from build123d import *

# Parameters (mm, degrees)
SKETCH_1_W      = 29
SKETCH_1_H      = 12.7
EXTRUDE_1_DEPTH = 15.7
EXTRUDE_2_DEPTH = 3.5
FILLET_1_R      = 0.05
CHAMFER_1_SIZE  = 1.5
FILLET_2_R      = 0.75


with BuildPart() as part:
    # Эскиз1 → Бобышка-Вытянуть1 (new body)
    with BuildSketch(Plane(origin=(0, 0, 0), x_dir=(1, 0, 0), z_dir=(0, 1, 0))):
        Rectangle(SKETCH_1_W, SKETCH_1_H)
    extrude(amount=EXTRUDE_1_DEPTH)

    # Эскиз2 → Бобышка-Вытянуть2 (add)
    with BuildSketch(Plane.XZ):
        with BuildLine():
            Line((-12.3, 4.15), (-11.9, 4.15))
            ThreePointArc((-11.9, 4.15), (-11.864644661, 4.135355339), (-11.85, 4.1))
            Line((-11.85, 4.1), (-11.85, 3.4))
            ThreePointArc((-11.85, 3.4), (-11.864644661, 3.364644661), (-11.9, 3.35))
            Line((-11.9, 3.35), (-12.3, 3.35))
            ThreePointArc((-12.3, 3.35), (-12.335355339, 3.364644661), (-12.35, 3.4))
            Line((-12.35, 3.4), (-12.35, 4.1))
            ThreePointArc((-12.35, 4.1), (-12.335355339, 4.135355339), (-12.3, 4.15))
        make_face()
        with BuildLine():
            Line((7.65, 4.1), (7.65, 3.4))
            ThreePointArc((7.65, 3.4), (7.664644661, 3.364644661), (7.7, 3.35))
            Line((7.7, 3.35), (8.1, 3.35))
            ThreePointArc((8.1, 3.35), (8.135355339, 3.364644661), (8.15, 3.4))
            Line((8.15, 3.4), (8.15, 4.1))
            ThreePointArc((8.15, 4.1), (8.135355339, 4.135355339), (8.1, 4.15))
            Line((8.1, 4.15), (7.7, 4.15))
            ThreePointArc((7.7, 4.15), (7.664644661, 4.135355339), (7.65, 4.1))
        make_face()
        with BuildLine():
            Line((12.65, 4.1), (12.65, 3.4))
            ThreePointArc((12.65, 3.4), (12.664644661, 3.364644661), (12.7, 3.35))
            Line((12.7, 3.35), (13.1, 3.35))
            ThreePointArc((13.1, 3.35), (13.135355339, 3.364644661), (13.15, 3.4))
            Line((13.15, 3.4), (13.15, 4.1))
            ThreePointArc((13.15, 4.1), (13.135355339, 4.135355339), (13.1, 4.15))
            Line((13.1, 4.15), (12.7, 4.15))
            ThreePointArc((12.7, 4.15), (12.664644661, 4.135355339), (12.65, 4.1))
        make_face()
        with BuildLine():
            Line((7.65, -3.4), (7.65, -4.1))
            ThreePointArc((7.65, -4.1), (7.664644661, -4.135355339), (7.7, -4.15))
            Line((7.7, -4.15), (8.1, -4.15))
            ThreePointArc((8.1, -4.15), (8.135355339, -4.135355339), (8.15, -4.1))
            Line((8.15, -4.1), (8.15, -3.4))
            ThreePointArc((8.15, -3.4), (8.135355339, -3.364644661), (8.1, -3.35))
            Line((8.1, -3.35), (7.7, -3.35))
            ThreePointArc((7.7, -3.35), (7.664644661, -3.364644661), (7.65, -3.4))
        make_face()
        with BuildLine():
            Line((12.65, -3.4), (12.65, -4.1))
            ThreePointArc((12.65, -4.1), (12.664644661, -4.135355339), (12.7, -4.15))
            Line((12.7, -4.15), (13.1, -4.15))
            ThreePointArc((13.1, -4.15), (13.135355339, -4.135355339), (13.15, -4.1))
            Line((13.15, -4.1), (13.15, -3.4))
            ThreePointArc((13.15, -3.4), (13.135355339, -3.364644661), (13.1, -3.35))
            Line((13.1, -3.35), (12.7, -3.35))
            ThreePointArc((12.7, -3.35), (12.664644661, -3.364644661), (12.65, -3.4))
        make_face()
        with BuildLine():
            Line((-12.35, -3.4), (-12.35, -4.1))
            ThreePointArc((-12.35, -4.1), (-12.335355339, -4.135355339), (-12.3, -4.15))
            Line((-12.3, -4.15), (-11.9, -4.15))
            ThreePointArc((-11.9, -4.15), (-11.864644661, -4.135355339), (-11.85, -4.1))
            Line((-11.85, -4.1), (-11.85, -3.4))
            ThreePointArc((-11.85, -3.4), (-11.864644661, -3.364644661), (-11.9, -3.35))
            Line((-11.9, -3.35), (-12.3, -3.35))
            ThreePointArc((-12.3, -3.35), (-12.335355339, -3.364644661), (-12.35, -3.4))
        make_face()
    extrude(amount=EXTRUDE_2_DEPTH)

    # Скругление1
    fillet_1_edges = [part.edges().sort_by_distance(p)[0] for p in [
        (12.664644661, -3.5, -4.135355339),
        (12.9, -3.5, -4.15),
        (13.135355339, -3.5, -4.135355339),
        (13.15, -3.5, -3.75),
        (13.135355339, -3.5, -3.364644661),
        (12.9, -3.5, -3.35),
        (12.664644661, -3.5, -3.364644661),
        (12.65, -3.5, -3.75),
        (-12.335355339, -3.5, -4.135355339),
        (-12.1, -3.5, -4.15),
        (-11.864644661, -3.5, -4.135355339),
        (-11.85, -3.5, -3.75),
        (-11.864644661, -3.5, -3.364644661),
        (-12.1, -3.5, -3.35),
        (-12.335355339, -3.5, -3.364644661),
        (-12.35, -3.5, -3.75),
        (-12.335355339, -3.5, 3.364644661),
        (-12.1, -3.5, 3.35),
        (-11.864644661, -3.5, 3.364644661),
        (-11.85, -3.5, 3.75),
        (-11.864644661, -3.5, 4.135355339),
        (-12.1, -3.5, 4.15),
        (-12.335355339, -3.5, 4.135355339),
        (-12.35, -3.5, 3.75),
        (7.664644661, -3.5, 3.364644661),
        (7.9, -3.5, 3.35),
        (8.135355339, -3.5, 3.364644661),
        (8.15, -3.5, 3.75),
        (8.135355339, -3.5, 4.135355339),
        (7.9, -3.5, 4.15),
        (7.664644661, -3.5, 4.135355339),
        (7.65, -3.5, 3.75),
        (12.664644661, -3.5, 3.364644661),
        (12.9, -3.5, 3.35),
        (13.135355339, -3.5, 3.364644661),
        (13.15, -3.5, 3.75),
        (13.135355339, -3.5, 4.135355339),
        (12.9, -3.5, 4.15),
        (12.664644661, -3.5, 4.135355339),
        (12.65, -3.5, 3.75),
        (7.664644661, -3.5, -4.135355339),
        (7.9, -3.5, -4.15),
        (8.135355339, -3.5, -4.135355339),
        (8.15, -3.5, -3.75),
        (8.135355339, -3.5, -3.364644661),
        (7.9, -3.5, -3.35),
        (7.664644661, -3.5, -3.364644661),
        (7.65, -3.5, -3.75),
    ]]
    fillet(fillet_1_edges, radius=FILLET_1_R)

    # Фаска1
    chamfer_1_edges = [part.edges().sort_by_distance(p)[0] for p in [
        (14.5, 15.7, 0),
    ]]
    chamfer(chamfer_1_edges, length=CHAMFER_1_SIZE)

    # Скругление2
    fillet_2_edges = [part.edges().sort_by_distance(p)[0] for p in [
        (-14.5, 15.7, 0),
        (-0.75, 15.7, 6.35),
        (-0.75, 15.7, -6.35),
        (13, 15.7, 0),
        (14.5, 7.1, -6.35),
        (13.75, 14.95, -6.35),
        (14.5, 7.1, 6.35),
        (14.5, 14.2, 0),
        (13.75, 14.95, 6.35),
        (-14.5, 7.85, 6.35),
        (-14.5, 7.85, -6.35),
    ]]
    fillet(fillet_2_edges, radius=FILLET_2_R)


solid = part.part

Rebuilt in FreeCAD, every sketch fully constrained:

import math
import FreeCAD as App
import Part
import Sketcher
from FreeCAD import Vector


def edges_at(feature, points):
    """Names of the edges that pass closest to the given points."""
    edges = feature.Shape.Edges
    near = lambda p: min(range(len(edges)), key=lambda i: edges[i].distToShape(Part.Vertex(*p))[0])
    return sorted({f"Edge{near(p) + 1}" for p in points})


def add_polygon(sketch, points):
    """Adds a closed chain of lines whose ends are joined by coincident constraints."""
    first, n = sketch.GeometryCount, len(points)
    for a, b in zip(points, points[1:] + points[:1]):
        sketch.addGeometry(Part.LineSegment(App.Vector(*a, 0), App.Vector(*b, 0)), False)
    for i in range(n):
        sketch.addConstraint(Sketcher.Constraint("Coincident", first + i, 2, first + (i + 1) % n, 1))

doc = App.newDocument("Part")
params = doc.addObject("Spreadsheet::Sheet", "Params")
for row, (alias, value) in enumerate([
    ("sketch1_width", "29 mm"),
    ("sketch1_height", "12.7 mm"),
    ("pad1_length", "15.7 mm"),
    ("sketch2_radius", "0.05 mm"),
    ("sketch2_width", "0.4 mm"),
    ("sketch2_height", "0.7 mm"),
    ("pad2_length", "3.5 mm"),
    ("fillet_radius", "0.05 mm"),
    ("chamfer_size", "1.5 mm"),
    ("fillet2_radius", "0.75 mm"),
], start=1):
    params.set(f"A{row}", alias)
    params.set(f"B{row}", "=" + value)
    params.setAlias(f"B{row}", alias)

body = doc.addObject("PartDesign::Body", "Body")

sketch1 = body.newObject("Sketcher::SketchObject", "Sketch")
sketch1.AttachmentSupport = (doc.getObject("XZ_Plane"), [""])
sketch1.MapMode = "FlatFace"
add_polygon(sketch1, [(-14, -6), (-14, 6), (14, 6), (14, -6)])
sketch1.addConstraint(Sketcher.Constraint("Vertical", 0))
sketch1.addConstraint(Sketcher.Constraint("Horizontal", 1))
sketch1.addConstraint(Sketcher.Constraint("Vertical", 2))
sketch1.addConstraint(Sketcher.Constraint("Horizontal", 3))
sketch1.addConstraint(Sketcher.Constraint("Symmetric", 0, 2, 2, 2, -1, 1))
sketch1.addConstraint(Sketcher.Constraint("DistanceX", 1, 1, 1, 2, 29.0))
sketch1.addConstraint(Sketcher.Constraint("DistanceY", 0, 1, 0, 2, 12.7))
sketch1.setExpression("Constraints[9]", "Params.sketch1_width")
sketch1.setExpression("Constraints[10]", "Params.sketch1_height")
pad1 = body.newObject("PartDesign::Pad", "Pad")
pad1.Profile = sketch1
pad1.setExpression("Length", "Params.pad1_length")
pad1.Reversed = True

sketch2 = body.newObject("Sketcher::SketchObject", "Sketch001")
sketch2.AttachmentSupport = (doc.getObject("XZ_Plane"), [""])
sketch2.MapMode = "FlatFace"
sketch2.addGeometry(Part.LineSegment(Vector(-11.9, 4.15, 0), Vector(-12.3, 4.15, 0)), False)
sketch2.addGeometry(Part.ArcOfCircle(Part.Circle(Vector(-12.3, 4.1, 0), Vector(0, 0, 1), 0.05), math.radians(90), math.radians(180)), False)
sketch2.addGeometry(Part.LineSegment(Vector(-12.35, 4.1, 0), Vector(-12.35, 3.4, 0)), False)
sketch2.addGeometry(Part.ArcOfCircle(Part.Circle(Vector(-12.3, 3.4, 0), Vector(0, 0, 1), 0.05), math.radians(180), math.radians(270)), False)
sketch2.addGeometry(Part.LineSegment(Vector(-12.3, 3.35, 0), Vector(-11.9, 3.35, 0)), False)
sketch2.addGeometry(Part.ArcOfCircle(Part.Circle(Vector(-11.9, 3.4, 0), Vector(0, 0, 1), 0.05), math.radians(-90), math.radians(0)), False)
sketch2.addGeometry(Part.LineSegment(Vector(-11.85, 3.4, 0), Vector(-11.85, 4.1, 0)), False)
sketch2.addGeometry(Part.ArcOfCircle(Part.Circle(Vector(-11.9, 4.1, 0), Vector(0, 0, 1), 0.05), math.radians(0), math.radians(90)), False)
sketch2.addGeometry(Part.LineSegment(Vector(7.65, 4.1, 0), Vector(7.65, 3.4, 0)), False)
sketch2.addGeometry(Part.ArcOfCircle(Part.Circle(Vector(7.7, 3.4, 0), Vector(0, 0, 1), 0.05), math.radians(180), math.radians(270)), False)
sketch2.addGeometry(Part.LineSegment(Vector(7.7, 3.35, 0), Vector(8.1, 3.35, 0)), False)
sketch2.addGeometry(Part.ArcOfCircle(Part.Circle(Vector(8.1, 3.4, 0), Vector(0, 0, 1), 0.05), math.radians(-90), math.radians(0)), False)
sketch2.addGeometry(Part.LineSegment(Vector(8.15, 3.4, 0), Vector(8.15, 4.1, 0)), False)
sketch2.addGeometry(Part.ArcOfCircle(Part.Circle(Vector(8.1, 4.1, 0), Vector(0, 0, 1), 0.05), math.radians(0), math.radians(90)), False)
sketch2.addGeometry(Part.LineSegment(Vector(8.1, 4.15, 0), Vector(7.7, 4.15, 0)), False)
sketch2.addGeometry(Part.ArcOfCircle(Part.Circle(Vector(7.7, 4.1, 0), Vector(0, 0, 1), 0.05), math.radians(90), math.radians(180)), False)
sketch2.addGeometry(Part.LineSegment(Vector(12.65, 4.1, 0), Vector(12.65, 3.4, 0)), False)
sketch2.addGeometry(Part.ArcOfCircle(Part.Circle(Vector(12.7, 3.4, 0), Vector(0, 0, 1), 0.05), math.radians(180), math.radians(270)), False)
sketch2.addGeometry(Part.LineSegment(Vector(12.7, 3.35, 0), Vector(13.1, 3.35, 0)), False)
sketch2.addGeometry(Part.ArcOfCircle(Part.Circle(Vector(13.1, 3.4, 0), Vector(0, 0, 1), 0.05), math.radians(-90), math.radians(0)), False)
sketch2.addGeometry(Part.LineSegment(Vector(13.15, 3.4, 0), Vector(13.15, 4.1, 0)), False)
sketch2.addGeometry(Part.ArcOfCircle(Part.Circle(Vector(13.1, 4.1, 0), Vector(0, 0, 1), 0.05), math.radians(0), math.radians(90)), False)
sketch2.addGeometry(Part.LineSegment(Vector(13.1, 4.15, 0), Vector(12.7, 4.15, 0)), False)
sketch2.addGeometry(Part.ArcOfCircle(Part.Circle(Vector(12.7, 4.1, 0), Vector(0, 0, 1), 0.05), math.radians(90), math.radians(180)), False)
sketch2.addGeometry(Part.LineSegment(Vector(7.65, -3.4, 0), Vector(7.65, -4.1, 0)), False)
sketch2.addGeometry(Part.ArcOfCircle(Part.Circle(Vector(7.7, -4.1, 0), Vector(0, 0, 1), 0.05), math.radians(180), math.radians(270)), False)
sketch2.addGeometry(Part.LineSegment(Vector(7.7, -4.15, 0), Vector(8.1, -4.15, 0)), False)
sketch2.addGeometry(Part.ArcOfCircle(Part.Circle(Vector(8.1, -4.1, 0), Vector(0, 0, 1), 0.05), math.radians(-90), math.radians(0)), False)
sketch2.addGeometry(Part.LineSegment(Vector(8.15, -4.1, 0), Vector(8.15, -3.4, 0)), False)
sketch2.addGeometry(Part.ArcOfCircle(Part.Circle(Vector(8.1, -3.4, 0), Vector(0, 0, 1), 0.05), math.radians(0), math.radians(90)), False)
sketch2.addGeometry(Part.LineSegment(Vector(8.1, -3.35, 0), Vector(7.7, -3.35, 0)), False)
sketch2.addGeometry(Part.ArcOfCircle(Part.Circle(Vector(7.7, -3.4, 0), Vector(0, 0, 1), 0.05), math.radians(90), math.radians(180)), False)
sketch2.addGeometry(Part.LineSegment(Vector(12.65, -3.4, 0), Vector(12.65, -4.1, 0)), False)
sketch2.addGeometry(Part.ArcOfCircle(Part.Circle(Vector(12.7, -4.1, 0), Vector(0, 0, 1), 0.05), math.radians(180), math.radians(270)), False)
sketch2.addGeometry(Part.LineSegment(Vector(12.7, -4.15, 0), Vector(13.1, -4.15, 0)), False)
sketch2.addGeometry(Part.ArcOfCircle(Part.Circle(Vector(13.1, -4.1, 0), Vector(0, 0, 1), 0.05), math.radians(-90), math.radians(0)), False)
sketch2.addGeometry(Part.LineSegment(Vector(13.15, -4.1, 0), Vector(13.15, -3.4, 0)), False)
sketch2.addGeometry(Part.ArcOfCircle(Part.Circle(Vector(13.1, -3.4, 0), Vector(0, 0, 1), 0.05), math.radians(0), math.radians(90)), False)
sketch2.addGeometry(Part.LineSegment(Vector(13.1, -3.35, 0), Vector(12.7, -3.35, 0)), False)
sketch2.addGeometry(Part.ArcOfCircle(Part.Circle(Vector(12.7, -3.4, 0), Vector(0, 0, 1), 0.05), math.radians(90), math.radians(180)), False)
sketch2.addGeometry(Part.LineSegment(Vector(-12.35, -3.4, 0), Vector(-12.35, -4.1, 0)), False)
sketch2.addGeometry(Part.ArcOfCircle(Part.Circle(Vector(-12.3, -4.1, 0), Vector(0, 0, 1), 0.05), math.radians(180), math.radians(270)), False)
sketch2.addGeometry(Part.LineSegment(Vector(-12.3, -4.15, 0), Vector(-11.9, -4.15, 0)), False)
sketch2.addGeometry(Part.ArcOfCircle(Part.Circle(Vector(-11.9, -4.1, 0), Vector(0, 0, 1), 0.05), math.radians(-90), math.radians(0)), False)
sketch2.addGeometry(Part.LineSegment(Vector(-11.85, -4.1, 0), Vector(-11.85, -3.4, 0)), False)
sketch2.addGeometry(Part.ArcOfCircle(Part.Circle(Vector(-11.9, -3.4, 0), Vector(0, 0, 1), 0.05), math.radians(0), math.radians(90)), False)
sketch2.addGeometry(Part.LineSegment(Vector(-11.9, -3.35, 0), Vector(-12.3, -3.35, 0)), False)
sketch2.addGeometry(Part.ArcOfCircle(Part.Circle(Vector(-12.3, -3.4, 0), Vector(0, 0, 1), 0.05), math.radians(90), math.radians(180)), False)
sketch2.addConstraint(Sketcher.Constraint("Tangent", 0, 2, 1, 1))
sketch2.addConstraint(Sketcher.Constraint("Tangent", 1, 2, 2, 1))
sketch2.addConstraint(Sketcher.Constraint("Tangent", 2, 2, 3, 1))
sketch2.addConstraint(Sketcher.Constraint("Tangent", 3, 2, 4, 1))
sketch2.addConstraint(Sketcher.Constraint("Tangent", 4, 2, 5, 1))
sketch2.addConstraint(Sketcher.Constraint("Tangent", 5, 2, 6, 1))
sketch2.addConstraint(Sketcher.Constraint("Tangent", 6, 2, 7, 1))
sketch2.addConstraint(Sketcher.Constraint("Tangent", 7, 2, 0, 1))
sketch2.addConstraint(Sketcher.Constraint("Tangent", 8, 2, 9, 1))
sketch2.addConstraint(Sketcher.Constraint("Tangent", 9, 2, 10, 1))
sketch2.addConstraint(Sketcher.Constraint("Tangent", 10, 2, 11, 1))
sketch2.addConstraint(Sketcher.Constraint("Tangent", 11, 2, 12, 1))
sketch2.addConstraint(Sketcher.Constraint("Tangent", 12, 2, 13, 1))
sketch2.addConstraint(Sketcher.Constraint("Tangent", 13, 2, 14, 1))
sketch2.addConstraint(Sketcher.Constraint("Tangent", 14, 2, 15, 1))
sketch2.addConstraint(Sketcher.Constraint("Tangent", 15, 2, 8, 1))
sketch2.addConstraint(Sketcher.Constraint("Tangent", 16, 2, 17, 1))
sketch2.addConstraint(Sketcher.Constraint("Tangent", 17, 2, 18, 1))
sketch2.addConstraint(Sketcher.Constraint("Tangent", 18, 2, 19, 1))
sketch2.addConstraint(Sketcher.Constraint("Tangent", 19, 2, 20, 1))
sketch2.addConstraint(Sketcher.Constraint("Tangent", 20, 2, 21, 1))
sketch2.addConstraint(Sketcher.Constraint("Tangent", 21, 2, 22, 1))
sketch2.addConstraint(Sketcher.Constraint("Tangent", 22, 2, 23, 1))
sketch2.addConstraint(Sketcher.Constraint("Tangent", 23, 2, 16, 1))
sketch2.addConstraint(Sketcher.Constraint("Tangent", 24, 2, 25, 1))
sketch2.addConstraint(Sketcher.Constraint("Tangent", 25, 2, 26, 1))
sketch2.addConstraint(Sketcher.Constraint("Tangent", 26, 2, 27, 1))
sketch2.addConstraint(Sketcher.Constraint("Tangent", 27, 2, 28, 1))
sketch2.addConstraint(Sketcher.Constraint("Tangent", 28, 2, 29, 1))
sketch2.addConstraint(Sketcher.Constraint("Tangent", 29, 2, 30, 1))
sketch2.addConstraint(Sketcher.Constraint("Tangent", 30, 2, 31, 1))
sketch2.addConstraint(Sketcher.Constraint("Tangent", 31, 2, 24, 1))
sketch2.addConstraint(Sketcher.Constraint("Tangent", 32, 2, 33, 1))
sketch2.addConstraint(Sketcher.Constraint("Tangent", 33, 2, 34, 1))
sketch2.addConstraint(Sketcher.Constraint("Tangent", 34, 2, 35, 1))
sketch2.addConstraint(Sketcher.Constraint("Tangent", 35, 2, 36, 1))
sketch2.addConstraint(Sketcher.Constraint("Tangent", 36, 2, 37, 1))
sketch2.addConstraint(Sketcher.Constraint("Tangent", 37, 2, 38, 1))
sketch2.addConstraint(Sketcher.Constraint("Tangent", 38, 2, 39, 1))
sketch2.addConstraint(Sketcher.Constraint("Tangent", 39, 2, 32, 1))
sketch2.addConstraint(Sketcher.Constraint("Tangent", 40, 2, 41, 1))
sketch2.addConstraint(Sketcher.Constraint("Tangent", 41, 2, 42, 1))
sketch2.addConstraint(Sketcher.Constraint("Tangent", 42, 2, 43, 1))
sketch2.addConstraint(Sketcher.Constraint("Tangent", 43, 2, 44, 1))
sketch2.addConstraint(Sketcher.Constraint("Tangent", 44, 2, 45, 1))
sketch2.addConstraint(Sketcher.Constraint("Tangent", 45, 2, 46, 1))
sketch2.addConstraint(Sketcher.Constraint("Tangent", 46, 2, 47, 1))
sketch2.addConstraint(Sketcher.Constraint("Tangent", 47, 2, 40, 1))
sketch2.addConstraint(Sketcher.Constraint("Horizontal", 0))
sketch2.addConstraint(Sketcher.Constraint("Vertical", 2))
sketch2.addConstraint(Sketcher.Constraint("Horizontal", 4))
sketch2.addConstraint(Sketcher.Constraint("Vertical", 6))
sketch2.addConstraint(Sketcher.Constraint("Vertical", 8))
sketch2.addConstraint(Sketcher.Constraint("Horizontal", 10))
sketch2.addConstraint(Sketcher.Constraint("Vertical", 12))
sketch2.addConstraint(Sketcher.Constraint("Horizontal", 14))
sketch2.addConstraint(Sketcher.Constraint("Vertical", 16))
sketch2.addConstraint(Sketcher.Constraint("Horizontal", 18))
sketch2.addConstraint(Sketcher.Constraint("Vertical", 20))
sketch2.addConstraint(Sketcher.Constraint("Horizontal", 22))
sketch2.addConstraint(Sketcher.Constraint("Vertical", 24))
sketch2.addConstraint(Sketcher.Constraint("Horizontal", 26))
sketch2.addConstraint(Sketcher.Constraint("Vertical", 28))
sketch2.addConstraint(Sketcher.Constraint("Horizontal", 30))
sketch2.addConstraint(Sketcher.Constraint("Vertical", 32))
sketch2.addConstraint(Sketcher.Constraint("Horizontal", 34))
sketch2.addConstraint(Sketcher.Constraint("Vertical", 36))
sketch2.addConstraint(Sketcher.Constraint("Horizontal", 38))
sketch2.addConstraint(Sketcher.Constraint("Vertical", 40))
sketch2.addConstraint(Sketcher.Constraint("Horizontal", 42))
sketch2.addConstraint(Sketcher.Constraint("Vertical", 44))
sketch2.addConstraint(Sketcher.Constraint("Horizontal", 46))
sketch2.addConstraint(Sketcher.Constraint("Equal", 1, 3))
sketch2.addConstraint(Sketcher.Constraint("Equal", 3, 5))
sketch2.addConstraint(Sketcher.Constraint("Equal", 5, 7))
sketch2.addConstraint(Sketcher.Constraint("Equal", 7, 9))
sketch2.addConstraint(Sketcher.Constraint("Equal", 9, 11))
sketch2.addConstraint(Sketcher.Constraint("Equal", 11, 13))
sketch2.addConstraint(Sketcher.Constraint("Equal", 13, 15))
sketch2.addConstraint(Sketcher.Constraint("Equal", 15, 17))
sketch2.addConstraint(Sketcher.Constraint("Equal", 17, 19))
sketch2.addConstraint(Sketcher.Constraint("Equal", 19, 21))
sketch2.addConstraint(Sketcher.Constraint("Equal", 21, 23))
sketch2.addConstraint(Sketcher.Constraint("Equal", 23, 25))
sketch2.addConstraint(Sketcher.Constraint("Equal", 25, 27))
sketch2.addConstraint(Sketcher.Constraint("Equal", 27, 29))
sketch2.addConstraint(Sketcher.Constraint("Equal", 29, 31))
sketch2.addConstraint(Sketcher.Constraint("Equal", 31, 33))
sketch2.addConstraint(Sketcher.Constraint("Equal", 33, 35))
sketch2.addConstraint(Sketcher.Constraint("Equal", 35, 37))
sketch2.addConstraint(Sketcher.Constraint("Equal", 37, 39))
sketch2.addConstraint(Sketcher.Constraint("Equal", 39, 41))
sketch2.addConstraint(Sketcher.Constraint("Equal", 41, 43))
sketch2.addConstraint(Sketcher.Constraint("Equal", 43, 45))
sketch2.addConstraint(Sketcher.Constraint("Equal", 45, 47))
sketch2.addConstraint(Sketcher.Constraint("Symmetric", 15, 3, 25, 3, -1))
sketch2.addConstraint(Sketcher.Constraint("Symmetric", 11, 3, 29, 3, -1))
sketch2.addConstraint(Sketcher.Constraint("Symmetric", 23, 3, 33, 3, -1))
sketch2.addConstraint(Sketcher.Constraint("Symmetric", 19, 3, 37, 3, -1))
sketch2.addConstraint(Sketcher.Constraint("Symmetric", 1, 3, 41, 3, -1))
sketch2.addConstraint(Sketcher.Constraint("Symmetric", 5, 3, 45, 3, -1))
sketch2.addConstraint(Sketcher.Constraint("Horizontal", 5, 3, 9, 3))
sketch2.addConstraint(Sketcher.Constraint("Horizontal", 7, 3, 13, 3))
sketch2.addConstraint(Sketcher.Constraint("Horizontal", 11, 3, 17, 3))
sketch2.addConstraint(Sketcher.Constraint("Horizontal", 15, 3, 21, 3))
sketch2.addConstraint(Sketcher.Constraint("Equal", 4, 10))
sketch2.addConstraint(Sketcher.Constraint("Equal", 14, 18))
sketch2.addConstraint(Sketcher.Constraint("Radius", 1, 0.05))
sketch2.addConstraint(Sketcher.Constraint("DistanceX", 0, 2, 0, 1, 0.4))
sketch2.addConstraint(Sketcher.Constraint("DistanceY", 2, 2, 2, 1, 0.7))
sketch2.addConstraint(Sketcher.Constraint("DistanceX", 1, 3, -1, 1, 12.3))
sketch2.addConstraint(Sketcher.Constraint("DistanceY", -1, 1, 1, 3, 4.1))
sketch2.addConstraint(Sketcher.Constraint("DistanceX", -1, 1, 9, 3, 7.7))
sketch2.addConstraint(Sketcher.Constraint("DistanceX", -1, 1, 17, 3, 12.7))
sketch2.setExpression("Constraints[107]", "Params.sketch2_radius")
sketch2.setExpression("Constraints[108]", "Params.sketch2_width")
sketch2.setExpression("Constraints[109]", "Params.sketch2_height")
pad2 = body.newObject("PartDesign::Pad", "Pad001")
pad2.Profile = sketch2
pad2.setExpression("Length", "Params.pad2_length")
doc.recompute()

fillet = body.newObject("PartDesign::Fillet", "Fillet")
fillet.Base = (pad2, edges_at(pad2, [
    (12.665, -3.5, -4.135),
    (12.9, -3.5, -4.15),
    (13.135, -3.5, -4.135),
    (13.15, -3.5, -3.75),
    (13.135, -3.5, -3.365),
    (12.9, -3.5, -3.35),
    (12.665, -3.5, -3.365),
    (12.65, -3.5, -3.75),
    (-12.335, -3.5, -4.135),
    (-12.1, -3.5, -4.15),
    (-11.865, -3.5, -4.135),
    (-11.85, -3.5, -3.75),
    (-11.865, -3.5, -3.365),
    (-12.1, -3.5, -3.35),
    (-12.335, -3.5, -3.365),
    (-12.35, -3.5, -3.75),
    (-12.335, -3.5, 3.365),
    (-12.1, -3.5, 3.35),
    (-11.865, -3.5, 3.365),
    (-11.85, -3.5, 3.75),
    (-11.865, -3.5, 4.135),
    (-12.1, -3.5, 4.15),
    (-12.335, -3.5, 4.135),
    (-12.35, -3.5, 3.75),
    (7.665, -3.5, 3.365),
    (7.9, -3.5, 3.35),
    (8.135, -3.5, 3.365),
    (8.15, -3.5, 3.75),
    (8.135, -3.5, 4.135),
    (7.9, -3.5, 4.15),
    (7.665, -3.5, 4.135),
    (7.65, -3.5, 3.75),
    (12.665, -3.5, 3.365),
    (12.9, -3.5, 3.35),
    (13.135, -3.5, 3.365),
    (13.15, -3.5, 3.75),
    (13.135, -3.5, 4.135),
    (12.9, -3.5, 4.15),
    (12.665, -3.5, 4.135),
    (12.65, -3.5, 3.75),
    (7.665, -3.5, -4.135),
    (7.9, -3.5, -4.15),
    (8.135, -3.5, -4.135),
    (8.15, -3.5, -3.75),
    (8.135, -3.5, -3.365),
    (7.9, -3.5, -3.35),
    (7.665, -3.5, -3.365),
    (7.65, -3.5, -3.75),
]))
fillet.setExpression("Radius", "Params.fillet_radius")
doc.recompute()

chamfer = body.newObject("PartDesign::Chamfer", "Chamfer")
chamfer.Base = (fillet, edges_at(fillet, [(14.5, 15.7, 0)]))
chamfer.setExpression("Size", "Params.chamfer_size")
doc.recompute()

fillet2 = body.newObject("PartDesign::Fillet", "Fillet001")
fillet2.Base = (chamfer, edges_at(chamfer, [
    (-14.5, 15.7, 0),
    (-0.75, 15.7, 6.35),
    (-0.75, 15.7, -6.35),
    (13, 15.7, 0),
    (14.5, 7.1, -6.35),
    (13.75, 14.95, -6.35),
    (14.5, 7.1, 6.35),
    (14.5, 14.2, 0),
    (13.75, 14.95, 6.35),
    (-14.5, 7.85, 6.35),
    (-14.5, 7.85, -6.35),
]))
fillet2.setExpression("Radius", "Params.fillet2_radius")

doc.recompute()
